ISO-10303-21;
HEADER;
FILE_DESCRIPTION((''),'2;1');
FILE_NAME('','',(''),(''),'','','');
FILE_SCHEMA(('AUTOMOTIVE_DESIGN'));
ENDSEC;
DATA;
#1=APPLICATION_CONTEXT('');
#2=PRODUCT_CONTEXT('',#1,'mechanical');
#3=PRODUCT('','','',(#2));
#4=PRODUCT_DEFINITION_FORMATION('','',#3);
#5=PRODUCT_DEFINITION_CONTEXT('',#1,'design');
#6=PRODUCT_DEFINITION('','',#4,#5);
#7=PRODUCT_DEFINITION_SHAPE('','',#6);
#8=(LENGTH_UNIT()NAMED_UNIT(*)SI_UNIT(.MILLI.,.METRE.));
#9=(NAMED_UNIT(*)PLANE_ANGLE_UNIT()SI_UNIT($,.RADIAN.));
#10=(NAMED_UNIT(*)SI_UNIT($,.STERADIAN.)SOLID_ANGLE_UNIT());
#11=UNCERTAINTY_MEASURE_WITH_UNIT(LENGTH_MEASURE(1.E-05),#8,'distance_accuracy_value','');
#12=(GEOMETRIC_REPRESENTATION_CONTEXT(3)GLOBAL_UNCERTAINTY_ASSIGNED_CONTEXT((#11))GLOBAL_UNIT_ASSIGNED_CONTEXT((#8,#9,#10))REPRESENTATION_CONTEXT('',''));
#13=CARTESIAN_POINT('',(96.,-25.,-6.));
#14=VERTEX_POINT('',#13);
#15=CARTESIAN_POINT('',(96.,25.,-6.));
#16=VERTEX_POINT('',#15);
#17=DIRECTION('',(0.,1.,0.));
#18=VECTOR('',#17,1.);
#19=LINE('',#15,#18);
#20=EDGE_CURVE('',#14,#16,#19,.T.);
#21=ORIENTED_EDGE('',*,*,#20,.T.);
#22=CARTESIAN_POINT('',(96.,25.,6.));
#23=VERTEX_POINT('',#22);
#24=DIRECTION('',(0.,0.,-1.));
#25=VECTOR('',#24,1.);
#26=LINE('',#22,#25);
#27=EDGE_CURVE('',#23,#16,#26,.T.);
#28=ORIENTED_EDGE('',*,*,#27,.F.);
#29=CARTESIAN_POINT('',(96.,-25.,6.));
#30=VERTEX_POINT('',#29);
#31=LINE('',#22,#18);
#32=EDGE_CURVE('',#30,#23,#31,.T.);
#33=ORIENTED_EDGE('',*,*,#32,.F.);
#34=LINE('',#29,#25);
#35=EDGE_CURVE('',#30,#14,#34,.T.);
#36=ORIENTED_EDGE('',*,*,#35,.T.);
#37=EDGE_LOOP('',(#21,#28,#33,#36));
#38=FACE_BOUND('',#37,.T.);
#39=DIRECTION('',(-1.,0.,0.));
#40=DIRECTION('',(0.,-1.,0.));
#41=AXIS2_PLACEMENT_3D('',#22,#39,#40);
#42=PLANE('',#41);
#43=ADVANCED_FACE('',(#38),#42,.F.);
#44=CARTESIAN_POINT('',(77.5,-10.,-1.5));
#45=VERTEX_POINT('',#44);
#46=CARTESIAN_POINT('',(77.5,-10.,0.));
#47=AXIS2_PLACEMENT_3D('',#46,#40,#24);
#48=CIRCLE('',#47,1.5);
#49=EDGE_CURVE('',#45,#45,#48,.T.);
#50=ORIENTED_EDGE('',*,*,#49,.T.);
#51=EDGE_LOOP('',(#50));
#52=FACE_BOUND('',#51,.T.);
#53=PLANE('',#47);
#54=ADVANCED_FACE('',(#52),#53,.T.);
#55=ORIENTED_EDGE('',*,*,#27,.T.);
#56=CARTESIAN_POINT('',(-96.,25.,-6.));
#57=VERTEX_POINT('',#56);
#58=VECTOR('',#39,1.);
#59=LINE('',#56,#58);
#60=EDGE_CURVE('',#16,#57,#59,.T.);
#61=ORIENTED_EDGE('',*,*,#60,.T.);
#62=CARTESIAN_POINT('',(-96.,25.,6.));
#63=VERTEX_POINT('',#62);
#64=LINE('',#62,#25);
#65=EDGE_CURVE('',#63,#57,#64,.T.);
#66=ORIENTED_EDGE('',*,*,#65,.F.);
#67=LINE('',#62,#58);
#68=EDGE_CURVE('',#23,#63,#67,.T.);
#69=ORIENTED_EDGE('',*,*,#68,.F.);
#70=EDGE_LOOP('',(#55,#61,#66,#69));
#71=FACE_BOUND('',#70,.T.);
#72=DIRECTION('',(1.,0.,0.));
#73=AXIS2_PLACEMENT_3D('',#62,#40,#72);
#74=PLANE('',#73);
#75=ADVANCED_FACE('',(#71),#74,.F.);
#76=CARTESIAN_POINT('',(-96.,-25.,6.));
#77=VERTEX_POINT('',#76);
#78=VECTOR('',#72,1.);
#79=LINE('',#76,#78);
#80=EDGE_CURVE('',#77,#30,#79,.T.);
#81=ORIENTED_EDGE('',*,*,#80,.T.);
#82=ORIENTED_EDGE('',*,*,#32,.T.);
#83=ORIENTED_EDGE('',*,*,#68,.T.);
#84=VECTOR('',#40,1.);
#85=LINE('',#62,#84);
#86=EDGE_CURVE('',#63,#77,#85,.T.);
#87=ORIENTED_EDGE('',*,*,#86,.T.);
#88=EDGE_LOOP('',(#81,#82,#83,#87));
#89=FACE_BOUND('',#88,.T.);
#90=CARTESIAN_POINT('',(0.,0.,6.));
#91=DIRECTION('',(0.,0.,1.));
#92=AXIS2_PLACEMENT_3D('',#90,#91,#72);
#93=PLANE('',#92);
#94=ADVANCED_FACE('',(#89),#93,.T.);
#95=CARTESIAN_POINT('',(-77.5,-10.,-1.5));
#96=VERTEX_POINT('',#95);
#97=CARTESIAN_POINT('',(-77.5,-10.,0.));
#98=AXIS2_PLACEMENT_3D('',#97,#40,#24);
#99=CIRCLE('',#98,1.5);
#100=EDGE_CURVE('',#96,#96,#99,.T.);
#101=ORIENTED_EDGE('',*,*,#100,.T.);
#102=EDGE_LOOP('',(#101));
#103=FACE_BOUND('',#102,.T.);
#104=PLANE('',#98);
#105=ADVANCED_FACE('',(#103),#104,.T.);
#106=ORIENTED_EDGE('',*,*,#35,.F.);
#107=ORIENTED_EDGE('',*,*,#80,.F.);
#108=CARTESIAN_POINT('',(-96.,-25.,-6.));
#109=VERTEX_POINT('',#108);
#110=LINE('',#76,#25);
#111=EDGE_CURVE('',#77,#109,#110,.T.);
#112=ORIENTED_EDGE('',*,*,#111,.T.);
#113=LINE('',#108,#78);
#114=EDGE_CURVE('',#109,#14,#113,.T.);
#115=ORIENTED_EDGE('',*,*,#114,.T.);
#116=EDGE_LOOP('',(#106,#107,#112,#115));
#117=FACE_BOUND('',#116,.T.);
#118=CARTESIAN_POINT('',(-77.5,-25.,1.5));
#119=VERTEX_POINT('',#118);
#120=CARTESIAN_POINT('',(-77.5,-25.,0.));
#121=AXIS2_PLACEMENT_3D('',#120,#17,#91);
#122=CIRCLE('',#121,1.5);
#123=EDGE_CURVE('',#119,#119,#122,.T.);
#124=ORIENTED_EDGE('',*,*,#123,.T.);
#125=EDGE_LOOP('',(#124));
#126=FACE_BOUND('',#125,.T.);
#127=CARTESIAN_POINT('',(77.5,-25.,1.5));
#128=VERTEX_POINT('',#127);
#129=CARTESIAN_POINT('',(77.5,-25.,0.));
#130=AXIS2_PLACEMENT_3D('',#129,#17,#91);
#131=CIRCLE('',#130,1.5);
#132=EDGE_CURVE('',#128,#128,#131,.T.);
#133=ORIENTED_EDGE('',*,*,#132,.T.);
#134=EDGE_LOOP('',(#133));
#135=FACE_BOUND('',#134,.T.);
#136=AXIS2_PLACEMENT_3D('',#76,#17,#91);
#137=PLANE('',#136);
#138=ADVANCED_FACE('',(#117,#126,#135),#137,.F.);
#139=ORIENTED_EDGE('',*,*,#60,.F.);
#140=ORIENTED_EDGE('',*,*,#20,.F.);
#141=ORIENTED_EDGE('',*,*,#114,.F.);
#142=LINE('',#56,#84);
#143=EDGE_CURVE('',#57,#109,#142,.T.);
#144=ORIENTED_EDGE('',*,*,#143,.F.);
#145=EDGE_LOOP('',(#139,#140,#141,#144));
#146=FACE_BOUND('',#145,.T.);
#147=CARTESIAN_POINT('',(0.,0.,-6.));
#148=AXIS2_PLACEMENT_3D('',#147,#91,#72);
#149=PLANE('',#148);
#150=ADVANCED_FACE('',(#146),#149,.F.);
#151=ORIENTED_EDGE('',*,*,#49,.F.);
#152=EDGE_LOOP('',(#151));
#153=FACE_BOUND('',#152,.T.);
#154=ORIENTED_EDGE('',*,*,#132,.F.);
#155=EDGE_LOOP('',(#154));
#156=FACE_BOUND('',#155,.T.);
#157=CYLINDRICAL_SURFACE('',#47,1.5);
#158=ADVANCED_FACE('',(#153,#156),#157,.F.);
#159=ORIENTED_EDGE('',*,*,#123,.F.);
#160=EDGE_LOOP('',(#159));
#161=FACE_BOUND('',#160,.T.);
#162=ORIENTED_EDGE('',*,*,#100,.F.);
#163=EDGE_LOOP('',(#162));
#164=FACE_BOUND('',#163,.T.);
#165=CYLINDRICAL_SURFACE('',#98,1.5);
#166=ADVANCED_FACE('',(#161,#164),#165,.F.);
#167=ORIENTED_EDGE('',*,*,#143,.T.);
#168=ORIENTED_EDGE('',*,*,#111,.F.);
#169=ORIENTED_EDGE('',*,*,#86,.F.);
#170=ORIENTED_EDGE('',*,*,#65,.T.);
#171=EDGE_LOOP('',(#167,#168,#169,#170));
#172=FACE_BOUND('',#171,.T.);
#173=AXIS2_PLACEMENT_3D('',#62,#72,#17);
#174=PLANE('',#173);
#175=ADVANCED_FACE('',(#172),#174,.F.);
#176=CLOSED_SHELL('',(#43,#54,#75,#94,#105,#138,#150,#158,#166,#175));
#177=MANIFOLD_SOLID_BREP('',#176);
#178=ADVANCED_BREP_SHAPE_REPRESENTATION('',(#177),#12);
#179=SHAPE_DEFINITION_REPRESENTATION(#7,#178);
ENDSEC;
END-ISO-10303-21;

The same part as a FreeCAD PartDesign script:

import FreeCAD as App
import Part
import Sketcher

doc = App.newDocument("Part")
body = doc.addObject("PartDesign::Body", "Body")

# Sketch on XY plane
sketch1 = doc.addObject("Sketcher::SketchObject", "Sketch")
body.addObject(sketch1)
sketch1.AttachmentSupport = (doc.XY_Plane, [""])
sketch1.MapMode = "FlatFace"
sketch1.addGeometry([
    Part.LineSegment(App.Vector(-96, 25, 0), App.Vector(-96, -25, 0)),
    Part.LineSegment(App.Vector(-96, -25, 0), App.Vector(96, -25, 0)),
    Part.LineSegment(App.Vector(96, -25, 0), App.Vector(96, 25, 0)),
    Part.LineSegment(App.Vector(96, 25, 0), App.Vector(-96, 25, 0)),
], False)
sketch1.addConstraint([
    Sketcher.Constraint("Coincident", 0, 2, 1, 1),
    Sketcher.Constraint("Coincident", 1, 2, 2, 1),
    Sketcher.Constraint("Coincident", 2, 2, 3, 1),
    Sketcher.Constraint("Coincident", 3, 2, 0, 1),
    Sketcher.Constraint("Vertical", 0),
    Sketcher.Constraint("Horizontal", 1),
    Sketcher.Constraint("Vertical", 2),
    Sketcher.Constraint("Horizontal", 3),
    Sketcher.Constraint("Symmetric", 0, 2, 2, 2, -1, 1),
    Sketcher.Constraint("DistanceX", 1, 1, 1, 2, 192.0),
    Sketcher.Constraint("DistanceY", 0, 2, 0, 1, 50.0),
])
pad1 = doc.addObject("PartDesign::Pad", "Pad")
body.addObject(pad1)
pad1.Profile = sketch1
pad1.Length = 12
pad1.Midplane = True

# Sketch on XZ plane
sketch2 = doc.addObject("Sketcher::SketchObject", "Sketch001")
body.addObject(sketch2)
sketch2.AttachmentSupport = (doc.XZ_Plane, [""])
sketch2.MapMode = "FlatFace"
sketch2.AttachmentOffset = App.Placement(App.Vector(0, 0, 25), App.Rotation())
sketch2.addGeometry([
    Part.Circle(App.Vector(-77.5, 0, 0), App.Vector(0, 0, 1), 1.5),
    Part.Circle(App.Vector(77.5, 0, 0), App.Vector(0, 0, 1), 1.5),
], False)
sketch2.addConstraint([
    Sketcher.Constraint("Equal", 0, 1),
    Sketcher.Constraint("Symmetric", 0, 3, 1, 3, -1, 1),
    Sketcher.Constraint("PointOnObject", 0, 3, -1),
    Sketcher.Constraint("Diameter", 0, 3.0),
    Sketcher.Constraint("DistanceX", 0, 3, 1, 3, 155.0),
])
pocket1 = doc.addObject("PartDesign::Pocket", "Pocket")
body.addObject(pocket1)
pocket1.Profile = sketch2
pocket1.Length = 30
pocket1.Midplane = True

doc.recompute()
